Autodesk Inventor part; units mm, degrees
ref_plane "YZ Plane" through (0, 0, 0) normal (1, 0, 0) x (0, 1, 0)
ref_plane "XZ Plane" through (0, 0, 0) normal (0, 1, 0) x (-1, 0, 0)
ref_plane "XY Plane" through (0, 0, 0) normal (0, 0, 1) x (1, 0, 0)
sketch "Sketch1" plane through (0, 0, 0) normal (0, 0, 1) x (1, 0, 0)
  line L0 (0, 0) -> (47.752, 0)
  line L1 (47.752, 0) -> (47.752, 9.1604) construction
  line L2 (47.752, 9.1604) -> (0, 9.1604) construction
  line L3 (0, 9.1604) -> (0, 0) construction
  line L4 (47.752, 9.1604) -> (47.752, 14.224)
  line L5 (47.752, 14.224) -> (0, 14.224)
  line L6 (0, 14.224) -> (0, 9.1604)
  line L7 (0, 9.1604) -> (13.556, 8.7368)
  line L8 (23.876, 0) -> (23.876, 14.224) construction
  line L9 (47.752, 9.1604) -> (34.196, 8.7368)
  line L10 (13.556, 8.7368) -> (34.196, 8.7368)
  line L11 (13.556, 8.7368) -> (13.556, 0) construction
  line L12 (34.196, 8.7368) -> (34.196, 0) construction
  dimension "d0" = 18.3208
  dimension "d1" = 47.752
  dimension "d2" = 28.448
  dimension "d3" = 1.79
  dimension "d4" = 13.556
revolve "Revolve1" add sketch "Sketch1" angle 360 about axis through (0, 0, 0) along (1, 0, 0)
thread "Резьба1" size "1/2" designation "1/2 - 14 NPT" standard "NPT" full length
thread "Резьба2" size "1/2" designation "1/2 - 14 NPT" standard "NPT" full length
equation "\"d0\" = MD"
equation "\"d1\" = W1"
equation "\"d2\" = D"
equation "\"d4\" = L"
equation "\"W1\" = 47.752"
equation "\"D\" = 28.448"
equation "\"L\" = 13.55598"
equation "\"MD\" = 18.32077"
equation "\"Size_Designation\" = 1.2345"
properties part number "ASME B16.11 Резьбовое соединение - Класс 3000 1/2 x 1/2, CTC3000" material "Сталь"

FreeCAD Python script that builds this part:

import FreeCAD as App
import Part
import Sketcher
from FreeCAD import Vector
Q = App.Units.Quantity

doc = App.newDocument("Part")
params = doc.addObject("Spreadsheet::Sheet", "Params")
for row, (alias, value) in enumerate([
    ("sketch1_width", "1.88 in"),
    ("revolution_angle", "360 deg"),
], start=1):
    params.set(f"A{row}", alias)
    params.set(f"B{row}", "=" + value)
    params.setAlias(f"B{row}", alias)

body = doc.addObject("PartDesign::Body", "Body")

sketch1 = body.newObject("Sketcher::SketchObject", "Sketch")
sketch1.AttachmentSupport = (doc.getObject("XY_Plane"), [""])
sketch1.MapMode = "FlatFace"
sketch1.addGeometry(Part.LineSegment(Vector(34, 9, 0), Vector(48, 9, 0)), False)
sketch1.addGeometry(Part.LineSegment(Vector(48, 9, 0), Vector(48, 14, 0)), False)
sketch1.addGeometry(Part.LineSegment(Vector(48, 14, 0), Vector(0, 14, 0)), False)
sketch1.addGeometry(Part.LineSegment(Vector(0, 14, 0), Vector(0, 9, 0)), False)
sketch1.addGeometry(Part.LineSegment(Vector(0, 9, 0), Vector(14, 9, 0)), False)
sketch1.addGeometry(Part.LineSegment(Vector(14, 9, 0), Vector(34, 9, 0)), False)
sketch1.addConstraint(Sketcher.Constraint("Coincident", 0, 2, 1, 1))
sketch1.addConstraint(Sketcher.Constraint("Coincident", 1, 2, 2, 1))
sketch1.addConstraint(Sketcher.Constraint("Coincident", 2, 2, 3, 1))
sketch1.addConstraint(Sketcher.Constraint("Coincident", 3, 2, 4, 1))
sketch1.addConstraint(Sketcher.Constraint("Coincident", 4, 2, 5, 1))
sketch1.addConstraint(Sketcher.Constraint("Coincident", 5, 2, 0, 1))
sketch1.addConstraint(Sketcher.Constraint("Vertical", 1))
sketch1.addConstraint(Sketcher.Constraint("Horizontal", 2))
sketch1.addConstraint(Sketcher.Constraint("Vertical", 3))
sketch1.addConstraint(Sketcher.Constraint("Horizontal", 5))
sketch1.addConstraint(Sketcher.Constraint("PointOnObject", 2, 2, -2))
sketch1.addConstraint(Sketcher.Constraint("Horizontal", 0, 2, 3, 2))
sketch1.addConstraint(Sketcher.Constraint("Equal", 0, 4))
sketch1.addConstraint(Sketcher.Constraint("DistanceX", 2, 2, 2, 1, Q("1.88 in")))
sketch1.addConstraint(Sketcher.Constraint("Angle", 0, Q("1.7898 deg")))
sketch1.addConstraint(Sketcher.Constraint("DistanceX", -1, 1, 4, 2, Q("0.5337 in")))
sketch1.addConstraint(Sketcher.Constraint("DistanceY", -1, 1, 1, 2, Q("0.56 in")))
sketch1.addConstraint(Sketcher.Constraint("DistanceY", 1, 1, 1, 2, Q("5.0636 mm")))
sketch1.setExpression("Constraints[13]", "Params.sketch1_width")
revolution = body.newObject("PartDesign::Revolution", "Revolution")
revolution.Profile = sketch1
revolution.ReferenceAxis = (sketch1, ["H_Axis"])
revolution.setExpression("Angle", "Params.revolution_angle")

doc.recompute()
